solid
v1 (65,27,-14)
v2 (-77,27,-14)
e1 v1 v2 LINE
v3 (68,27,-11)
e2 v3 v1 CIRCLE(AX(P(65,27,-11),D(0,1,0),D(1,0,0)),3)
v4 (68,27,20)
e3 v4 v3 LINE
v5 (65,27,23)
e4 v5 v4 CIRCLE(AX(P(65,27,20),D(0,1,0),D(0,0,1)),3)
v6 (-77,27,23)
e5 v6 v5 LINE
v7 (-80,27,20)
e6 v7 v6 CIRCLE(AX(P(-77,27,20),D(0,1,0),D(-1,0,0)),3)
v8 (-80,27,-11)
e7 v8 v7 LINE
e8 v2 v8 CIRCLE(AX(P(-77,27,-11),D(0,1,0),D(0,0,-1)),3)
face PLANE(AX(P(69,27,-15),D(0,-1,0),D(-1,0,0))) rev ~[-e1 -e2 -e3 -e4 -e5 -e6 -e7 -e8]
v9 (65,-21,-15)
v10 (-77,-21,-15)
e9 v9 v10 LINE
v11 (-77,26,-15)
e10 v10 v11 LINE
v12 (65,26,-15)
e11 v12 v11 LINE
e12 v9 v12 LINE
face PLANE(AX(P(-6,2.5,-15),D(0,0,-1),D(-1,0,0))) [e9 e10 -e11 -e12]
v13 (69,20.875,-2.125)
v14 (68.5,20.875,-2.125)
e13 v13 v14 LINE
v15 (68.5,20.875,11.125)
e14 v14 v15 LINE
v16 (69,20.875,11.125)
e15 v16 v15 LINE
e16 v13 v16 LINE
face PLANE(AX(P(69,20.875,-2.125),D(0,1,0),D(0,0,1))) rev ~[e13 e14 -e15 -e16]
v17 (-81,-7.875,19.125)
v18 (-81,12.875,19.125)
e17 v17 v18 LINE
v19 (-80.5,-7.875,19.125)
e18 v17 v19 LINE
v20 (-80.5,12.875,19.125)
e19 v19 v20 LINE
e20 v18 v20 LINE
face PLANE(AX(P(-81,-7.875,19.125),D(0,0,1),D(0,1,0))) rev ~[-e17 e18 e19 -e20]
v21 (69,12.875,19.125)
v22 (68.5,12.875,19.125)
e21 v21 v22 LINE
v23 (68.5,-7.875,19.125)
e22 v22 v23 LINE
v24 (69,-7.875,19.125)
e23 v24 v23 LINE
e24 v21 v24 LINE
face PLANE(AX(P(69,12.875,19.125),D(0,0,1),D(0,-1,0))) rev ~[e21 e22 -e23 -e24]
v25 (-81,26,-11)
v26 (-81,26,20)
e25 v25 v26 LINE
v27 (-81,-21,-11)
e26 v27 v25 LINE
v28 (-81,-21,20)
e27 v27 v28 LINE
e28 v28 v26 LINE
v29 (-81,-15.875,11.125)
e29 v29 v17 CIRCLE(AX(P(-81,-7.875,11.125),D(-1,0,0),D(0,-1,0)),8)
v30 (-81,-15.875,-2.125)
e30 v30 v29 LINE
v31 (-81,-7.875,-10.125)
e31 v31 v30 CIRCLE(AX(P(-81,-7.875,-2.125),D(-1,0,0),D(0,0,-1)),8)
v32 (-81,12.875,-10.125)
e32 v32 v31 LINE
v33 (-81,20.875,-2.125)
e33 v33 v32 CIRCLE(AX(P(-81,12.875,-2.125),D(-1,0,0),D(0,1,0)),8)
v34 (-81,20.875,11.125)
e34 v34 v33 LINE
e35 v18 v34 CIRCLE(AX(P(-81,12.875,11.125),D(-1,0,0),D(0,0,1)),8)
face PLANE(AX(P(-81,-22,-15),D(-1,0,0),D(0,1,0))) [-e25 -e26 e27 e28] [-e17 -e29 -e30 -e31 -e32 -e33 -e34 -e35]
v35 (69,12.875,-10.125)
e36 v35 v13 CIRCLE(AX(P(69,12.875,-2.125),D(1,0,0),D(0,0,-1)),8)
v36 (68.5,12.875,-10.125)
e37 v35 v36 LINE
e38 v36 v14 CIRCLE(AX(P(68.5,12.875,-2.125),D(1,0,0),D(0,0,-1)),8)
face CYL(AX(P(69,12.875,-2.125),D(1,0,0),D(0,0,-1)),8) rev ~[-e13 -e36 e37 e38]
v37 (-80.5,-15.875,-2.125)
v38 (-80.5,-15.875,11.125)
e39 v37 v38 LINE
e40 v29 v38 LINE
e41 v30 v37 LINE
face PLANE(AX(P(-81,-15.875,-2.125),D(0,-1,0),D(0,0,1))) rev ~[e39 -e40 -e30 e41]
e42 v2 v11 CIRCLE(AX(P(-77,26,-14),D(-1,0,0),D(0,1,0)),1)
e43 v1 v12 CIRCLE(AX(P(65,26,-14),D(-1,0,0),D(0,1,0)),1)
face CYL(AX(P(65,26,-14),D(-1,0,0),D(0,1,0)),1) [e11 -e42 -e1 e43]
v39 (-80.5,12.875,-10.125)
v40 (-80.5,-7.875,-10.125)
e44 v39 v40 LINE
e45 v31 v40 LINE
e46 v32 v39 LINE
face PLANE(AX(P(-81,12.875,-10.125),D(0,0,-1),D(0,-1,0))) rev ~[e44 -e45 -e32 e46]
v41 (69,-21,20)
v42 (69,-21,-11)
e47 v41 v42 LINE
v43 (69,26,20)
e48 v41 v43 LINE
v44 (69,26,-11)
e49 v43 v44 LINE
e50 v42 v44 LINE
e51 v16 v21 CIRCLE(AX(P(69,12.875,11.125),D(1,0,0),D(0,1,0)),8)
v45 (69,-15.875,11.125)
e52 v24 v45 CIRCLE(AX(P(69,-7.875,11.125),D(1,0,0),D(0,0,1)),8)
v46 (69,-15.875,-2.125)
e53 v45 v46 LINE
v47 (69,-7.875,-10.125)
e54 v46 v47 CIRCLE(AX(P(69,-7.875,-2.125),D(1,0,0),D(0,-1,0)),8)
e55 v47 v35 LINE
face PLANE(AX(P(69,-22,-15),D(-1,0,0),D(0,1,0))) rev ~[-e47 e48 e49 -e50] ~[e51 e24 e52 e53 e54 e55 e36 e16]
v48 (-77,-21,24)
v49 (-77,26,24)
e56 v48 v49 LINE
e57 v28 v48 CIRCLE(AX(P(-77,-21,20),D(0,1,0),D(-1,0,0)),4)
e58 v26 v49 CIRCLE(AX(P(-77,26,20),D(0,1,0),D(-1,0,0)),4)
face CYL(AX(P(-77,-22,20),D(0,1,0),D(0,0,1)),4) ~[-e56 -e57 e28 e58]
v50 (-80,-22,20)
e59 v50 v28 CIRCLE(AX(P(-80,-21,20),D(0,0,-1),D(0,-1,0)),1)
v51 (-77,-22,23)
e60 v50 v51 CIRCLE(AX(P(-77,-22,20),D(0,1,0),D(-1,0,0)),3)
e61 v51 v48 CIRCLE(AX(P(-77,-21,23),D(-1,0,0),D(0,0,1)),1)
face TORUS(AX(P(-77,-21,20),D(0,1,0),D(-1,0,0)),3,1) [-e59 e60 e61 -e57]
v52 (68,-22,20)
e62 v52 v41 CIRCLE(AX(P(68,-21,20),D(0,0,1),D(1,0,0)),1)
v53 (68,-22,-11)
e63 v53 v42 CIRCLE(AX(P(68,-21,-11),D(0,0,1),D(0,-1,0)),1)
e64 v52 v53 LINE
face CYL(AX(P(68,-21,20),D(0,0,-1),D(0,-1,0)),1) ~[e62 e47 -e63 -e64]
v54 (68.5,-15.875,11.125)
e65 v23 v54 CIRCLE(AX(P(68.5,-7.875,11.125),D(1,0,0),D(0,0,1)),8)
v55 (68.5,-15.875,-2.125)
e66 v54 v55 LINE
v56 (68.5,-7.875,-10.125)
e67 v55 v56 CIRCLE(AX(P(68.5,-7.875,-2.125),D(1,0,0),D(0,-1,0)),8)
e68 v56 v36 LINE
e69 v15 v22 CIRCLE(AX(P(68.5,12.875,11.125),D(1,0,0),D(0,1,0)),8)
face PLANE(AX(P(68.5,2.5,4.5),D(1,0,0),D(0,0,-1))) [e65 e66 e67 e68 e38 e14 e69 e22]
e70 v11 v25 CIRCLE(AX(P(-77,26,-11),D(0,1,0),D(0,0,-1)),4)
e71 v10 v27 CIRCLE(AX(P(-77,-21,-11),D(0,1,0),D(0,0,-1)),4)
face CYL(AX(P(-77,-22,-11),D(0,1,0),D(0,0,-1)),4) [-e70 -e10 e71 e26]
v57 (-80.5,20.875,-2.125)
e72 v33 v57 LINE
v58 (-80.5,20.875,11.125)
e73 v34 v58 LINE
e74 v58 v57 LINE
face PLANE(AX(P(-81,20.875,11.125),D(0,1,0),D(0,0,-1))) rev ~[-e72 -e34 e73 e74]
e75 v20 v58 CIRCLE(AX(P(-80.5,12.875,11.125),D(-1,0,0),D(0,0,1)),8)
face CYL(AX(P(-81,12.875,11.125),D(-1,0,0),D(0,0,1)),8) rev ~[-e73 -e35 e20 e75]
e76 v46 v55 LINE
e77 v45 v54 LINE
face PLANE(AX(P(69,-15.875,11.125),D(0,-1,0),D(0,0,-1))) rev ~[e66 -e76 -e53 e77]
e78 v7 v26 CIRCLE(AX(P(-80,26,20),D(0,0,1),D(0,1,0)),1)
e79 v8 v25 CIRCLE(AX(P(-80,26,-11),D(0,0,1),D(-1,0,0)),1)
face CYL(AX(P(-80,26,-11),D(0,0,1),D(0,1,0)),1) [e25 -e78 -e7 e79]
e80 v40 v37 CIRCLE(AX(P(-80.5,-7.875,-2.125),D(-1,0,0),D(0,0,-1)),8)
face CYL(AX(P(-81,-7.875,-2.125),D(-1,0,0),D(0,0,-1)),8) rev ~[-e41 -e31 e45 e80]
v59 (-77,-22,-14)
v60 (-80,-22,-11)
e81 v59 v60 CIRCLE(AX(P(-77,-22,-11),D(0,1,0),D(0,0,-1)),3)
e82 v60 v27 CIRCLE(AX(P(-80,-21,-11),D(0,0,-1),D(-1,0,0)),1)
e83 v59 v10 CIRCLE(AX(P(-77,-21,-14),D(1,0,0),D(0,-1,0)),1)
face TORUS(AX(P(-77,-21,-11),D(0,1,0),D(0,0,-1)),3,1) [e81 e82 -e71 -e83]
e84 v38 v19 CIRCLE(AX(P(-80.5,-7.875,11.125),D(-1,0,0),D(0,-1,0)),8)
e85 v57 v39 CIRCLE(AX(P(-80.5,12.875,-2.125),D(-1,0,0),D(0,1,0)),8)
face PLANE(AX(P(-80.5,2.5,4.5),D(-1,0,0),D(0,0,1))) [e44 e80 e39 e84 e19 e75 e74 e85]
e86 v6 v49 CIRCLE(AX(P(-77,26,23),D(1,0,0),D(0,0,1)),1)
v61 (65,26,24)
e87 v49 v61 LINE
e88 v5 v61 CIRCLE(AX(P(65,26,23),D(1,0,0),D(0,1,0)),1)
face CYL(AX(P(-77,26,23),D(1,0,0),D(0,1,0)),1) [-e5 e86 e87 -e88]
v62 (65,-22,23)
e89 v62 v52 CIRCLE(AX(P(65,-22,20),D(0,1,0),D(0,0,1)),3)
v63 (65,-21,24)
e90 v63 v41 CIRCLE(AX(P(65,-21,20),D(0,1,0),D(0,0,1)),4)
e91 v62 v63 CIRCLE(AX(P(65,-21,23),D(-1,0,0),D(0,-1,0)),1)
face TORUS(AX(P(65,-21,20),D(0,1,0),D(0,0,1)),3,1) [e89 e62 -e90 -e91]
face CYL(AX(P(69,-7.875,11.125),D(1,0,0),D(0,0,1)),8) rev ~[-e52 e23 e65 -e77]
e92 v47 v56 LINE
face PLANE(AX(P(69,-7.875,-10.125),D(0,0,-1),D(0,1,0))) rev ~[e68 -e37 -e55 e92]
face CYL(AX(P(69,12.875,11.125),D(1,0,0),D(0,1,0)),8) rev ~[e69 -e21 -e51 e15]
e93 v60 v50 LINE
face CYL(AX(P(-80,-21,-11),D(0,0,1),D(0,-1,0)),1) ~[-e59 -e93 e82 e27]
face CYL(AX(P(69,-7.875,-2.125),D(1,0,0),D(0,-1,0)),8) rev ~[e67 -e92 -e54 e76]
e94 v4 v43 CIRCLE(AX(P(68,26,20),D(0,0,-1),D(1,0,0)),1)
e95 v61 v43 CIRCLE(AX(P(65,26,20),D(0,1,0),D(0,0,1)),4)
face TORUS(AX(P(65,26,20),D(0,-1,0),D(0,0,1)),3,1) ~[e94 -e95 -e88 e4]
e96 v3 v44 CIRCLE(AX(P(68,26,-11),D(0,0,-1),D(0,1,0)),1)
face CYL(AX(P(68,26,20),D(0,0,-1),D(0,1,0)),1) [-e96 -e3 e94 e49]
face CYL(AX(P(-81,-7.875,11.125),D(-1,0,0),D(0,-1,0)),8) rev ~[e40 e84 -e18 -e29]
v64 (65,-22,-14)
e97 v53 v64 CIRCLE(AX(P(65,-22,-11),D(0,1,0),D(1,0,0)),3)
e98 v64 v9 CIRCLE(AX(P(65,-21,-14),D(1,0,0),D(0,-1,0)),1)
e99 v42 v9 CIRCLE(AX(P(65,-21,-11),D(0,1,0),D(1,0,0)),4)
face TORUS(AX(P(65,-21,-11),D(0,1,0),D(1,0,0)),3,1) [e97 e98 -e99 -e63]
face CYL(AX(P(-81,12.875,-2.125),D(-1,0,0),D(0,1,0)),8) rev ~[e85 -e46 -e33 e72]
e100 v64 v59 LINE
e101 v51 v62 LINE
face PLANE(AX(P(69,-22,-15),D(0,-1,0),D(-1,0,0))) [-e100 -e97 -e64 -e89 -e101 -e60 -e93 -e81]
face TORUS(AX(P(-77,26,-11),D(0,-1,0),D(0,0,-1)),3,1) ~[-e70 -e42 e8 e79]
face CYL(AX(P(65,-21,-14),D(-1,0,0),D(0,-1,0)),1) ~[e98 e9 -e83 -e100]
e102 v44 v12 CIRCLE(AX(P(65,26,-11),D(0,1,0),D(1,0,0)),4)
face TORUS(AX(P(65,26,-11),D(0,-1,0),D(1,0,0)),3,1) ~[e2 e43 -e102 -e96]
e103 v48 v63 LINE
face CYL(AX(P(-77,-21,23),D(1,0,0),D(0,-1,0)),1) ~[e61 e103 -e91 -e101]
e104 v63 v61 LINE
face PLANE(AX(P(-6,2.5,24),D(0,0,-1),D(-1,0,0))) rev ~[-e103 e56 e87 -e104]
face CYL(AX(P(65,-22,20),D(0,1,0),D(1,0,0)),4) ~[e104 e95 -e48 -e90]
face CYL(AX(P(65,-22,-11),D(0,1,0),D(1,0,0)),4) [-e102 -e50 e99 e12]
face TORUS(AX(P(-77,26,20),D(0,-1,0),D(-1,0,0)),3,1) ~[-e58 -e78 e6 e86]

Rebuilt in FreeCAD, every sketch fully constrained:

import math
import FreeCAD as App
import Part
import Sketcher
Q = App.Units.Quantity


def edges_at(feature, points):
    """Names of the edges that pass closest to the given points."""
    edges = feature.Shape.Edges
    near = lambda p: min(range(len(edges)), key=lambda i: edges[i].distToShape(Part.Vertex(*p))[0])
    return sorted({f"Edge{near(p) + 1}" for p in points})

doc = App.newDocument("Part")
params = doc.addObject("Spreadsheet::Sheet", "Params")
for row, (alias, value) in enumerate([
    ("sketch1_width", "150 mm"),
    ("sketch1_height", "49 mm"),
    ("pad1_length", "39 mm"),
    ("sketch2_radius", "8 mm"),
    ("sketch2_width", "20.75 mm"),
    ("sketch2_height", "13.25 mm"),
    ("pocket1_length", "0.5 mm"),
    ("sketch3_radius", "8 mm"),
    ("sketch3_width", "20.75 mm"),
    ("sketch3_height", "13.25 mm"),
    ("pocket2_length", "0.5 mm"),
    ("fillet_radius", "4 mm"),
    ("fillet2_radius", "1 mm"),
], start=1):
    params.set(f"A{row}", alias)
    params.set(f"B{row}", "=" + value)
    params.setAlias(f"B{row}", alias)

body = doc.addObject("PartDesign::Body", "Body")

sketch1 = body.newObject("Sketcher::SketchObject", "Sketch")
sketch1.AttachmentSupport = (doc.getObject("XY_Plane"), [""])
sketch1.MapMode = "FlatFace"
sketch1.AttachmentOffset = App.Placement(App.Vector(0, 0, -15), App.Rotation())
sketch1.addGeometry([
    Part.LineSegment(App.Vector(69, 27, 0), App.Vector(69, -22, 0)),
    Part.LineSegment(App.Vector(69, -22, 0), App.Vector(-81, -22, 0)),
    Part.LineSegment(App.Vector(-81, -22, 0), App.Vector(-81, 27, 0)),
    Part.LineSegment(App.Vector(-81, 27, 0), App.Vector(69, 27, 0)),
], False)
sketch1.addConstraint([
    Sketcher.Constraint("Coincident", 0, 2, 1, 1),
    Sketcher.Constraint("Coincident", 1, 2, 2, 1),
    Sketcher.Constraint("Coincident", 2, 2, 3, 1),
    Sketcher.Constraint("Coincident", 3, 2, 0, 1),
    Sketcher.Constraint("Vertical", 0),
    Sketcher.Constraint("Horizontal", 1),
    Sketcher.Constraint("Vertical", 2),
    Sketcher.Constraint("Horizontal", 3),
    Sketcher.Constraint("DistanceX", 1, 2, 1, 1, Q("150 mm")),
    Sketcher.Constraint("DistanceY", 0, 2, 0, 1, Q("49 mm")),
    Sketcher.Constraint("DistanceX", -1, 1, 0, 2, Q("69 mm")),
    Sketcher.Constraint("DistanceY", 0, 2, -1, 1, Q("22 mm")),
])
sketch1.setExpression("Constraints[8]", "Params.sketch1_width")
sketch1.setExpression("Constraints[9]", "Params.sketch1_height")
pad1 = body.newObject("PartDesign::Pad", "Pad")
pad1.Profile = sketch1
pad1.setExpression("Length", "Params.pad1_length")

sketch2 = body.newObject("Sketcher::SketchObject", "Sketch001")
sketch2.AttachmentSupport = (doc.getObject("YZ_Plane"), [""])
sketch2.MapMode = "FlatFace"
sketch2.AttachmentOffset = App.Placement(App.Vector(0, 0, 69), App.Rotation())
sketch2.addGeometry([
    Part.LineSegment(App.Vector(12.875, 19.125, 0), App.Vector(-7.875, 19.125, 0)),
    Part.ArcOfCircle(Part.Circle(App.Vector(-7.875, 11.125, 0), App.Vector(0, 0, 1), 8), math.radians(90), math.radians(180)),
    Part.LineSegment(App.Vector(-15.875, 11.125, 0), App.Vector(-15.875, -2.125, 0)),
    Part.ArcOfCircle(Part.Circle(App.Vector(-7.875, -2.125, 0), App.Vector(0, 0, 1), 8), math.radians(-180), math.radians(-90)),
    Part.LineSegment(App.Vector(-7.875, -10.125, 0), App.Vector(12.875, -10.125, 0)),
    Part.ArcOfCircle(Part.Circle(App.Vector(12.875, -2.125, 0), App.Vector(0, 0, 1), 8), math.radians(-90), math.radians(0)),
    Part.LineSegment(App.Vector(20.875, -2.125, 0), App.Vector(20.875, 11.125, 0)),
    Part.ArcOfCircle(Part.Circle(App.Vector(12.875, 11.125, 0), App.Vector(0, 0, 1), 8), math.radians(0), math.radians(90)),
], False)
sketch2.addConstraint([
    Sketcher.Constraint("Tangent", 0, 2, 1, 1),
    Sketcher.Constraint("Tangent", 1, 2, 2, 1),
    Sketcher.Constraint("Tangent", 2, 2, 3, 1),
    Sketcher.Constraint("Tangent", 3, 2, 4, 1),
    Sketcher.Constraint("Tangent", 4, 2, 5, 1),
    Sketcher.Constraint("Tangent", 5, 2, 6, 1),
    Sketcher.Constraint("Tangent", 6, 2, 7, 1),
    Sketcher.Constraint("Tangent", 7, 2, 0, 1),
    Sketcher.Constraint("Horizontal", 0),
    Sketcher.Constraint("Vertical", 2),
    Sketcher.Constraint("Horizontal", 4),
    Sketcher.Constraint("Vertical", 6),
    Sketcher.Constraint("Equal", 1, 3),
    Sketcher.Constraint("Equal", 3, 5),
    Sketcher.Constraint("Equal", 5, 7),
    Sketcher.Constraint("Radius", 1, Q("8 mm")),
    Sketcher.Constraint("DistanceX", 0, 2, 0, 1, Q("20.75 mm")),
    Sketcher.Constraint("DistanceY", 2, 2, 2, 1, Q("13.25 mm")),
    Sketcher.Constraint("DistanceX", 1, 3, -1, 1, Q("7.875 mm")),
    Sketcher.Constraint("DistanceY", -1, 1, 1, 3, Q("11.125 mm")),
])
sketch2.setExpression("Constraints[15]", "Params.sketch2_radius")
sketch2.setExpression("Constraints[16]", "Params.sketch2_width")
sketch2.setExpression("Constraints[17]", "Params.sketch2_height")
pocket1 = body.newObject("PartDesign::Pocket", "Pocket")
pocket1.Profile = sketch2
pocket1.setExpression("Length", "Params.pocket1_length")

sketch3 = body.newObject("Sketcher::SketchObject", "Sketch002")
sketch3.AttachmentSupport = (doc.getObject("YZ_Plane"), [""])
sketch3.MapMode = "FlatFace"
sketch3.AttachmentOffset = App.Placement(App.Vector(0, 0, -81), App.Rotation())
sketch3.addGeometry([
    Part.LineSegment(App.Vector(20.875, 11.125, 0), App.Vector(20.875, -2.125, 0)),
    Part.ArcOfCircle(Part.Circle(App.Vector(12.875, -2.125, 0), App.Vector(0, 0, 1), 8), math.radians(-90), math.radians(0)),
    Part.LineSegment(App.Vector(12.875, -10.125, 0), App.Vector(-7.875, -10.125, 0)),
    Part.ArcOfCircle(Part.Circle(App.Vector(-7.875, -2.125, 0), App.Vector(0, 0, 1), 8), math.radians(-180), math.radians(-90)),
    Part.LineSegment(App.Vector(-15.875, -2.125, 0), App.Vector(-15.875, 11.125, 0)),
    Part.ArcOfCircle(Part.Circle(App.Vector(-7.875, 11.125, 0), App.Vector(0, 0, 1), 8), math.radians(90), math.radians(180)),
    Part.LineSegment(App.Vector(-7.875, 19.125, 0), App.Vector(12.875, 19.125, 0)),
    Part.ArcOfCircle(Part.Circle(App.Vector(12.875, 11.125, 0), App.Vector(0, 0, 1), 8), math.radians(0), math.radians(90)),
], False)
sketch3.addConstraint([
    Sketcher.Constraint("Tangent", 0, 2, 1, 2),
    Sketcher.Constraint("Tangent", 1, 1, 2, 1),
    Sketcher.Constraint("Tangent", 2, 2, 3, 2),
    Sketcher.Constraint("Tangent", 3, 1, 4, 1),
    Sketcher.Constraint("Tangent", 4, 2, 5, 2),
    Sketcher.Constraint("Tangent", 5, 1, 6, 1),
    Sketcher.Constraint("Tangent", 6, 2, 7, 2),
    Sketcher.Constraint("Tangent", 7, 1, 0, 1),
    Sketcher.Constraint("Vertical", 0),
    Sketcher.Constraint("Horizontal", 2),
    Sketcher.Constraint("Vertical", 4),
    Sketcher.Constraint("Horizontal", 6),
    Sketcher.Constraint("Equal", 1, 3),
    Sketcher.Constraint("Equal", 3, 5),
    Sketcher.Constraint("Equal", 5, 7),
    Sketcher.Constraint("Radius", 1, Q("8 mm")),
    Sketcher.Constraint("DistanceX", 2, 2, 2, 1, Q("20.75 mm")),
    Sketcher.Constraint("DistanceY", 0, 2, 0, 1, Q("13.25 mm")),
    Sketcher.Constraint("DistanceX", -1, 1, 1, 3, Q("12.875 mm")),
    Sketcher.Constraint("DistanceY", 1, 3, -1, 1, Q("2.125 mm")),
])
sketch3.setExpression("Constraints[15]", "Params.sketch3_radius")
sketch3.setExpression("Constraints[16]", "Params.sketch3_width")
sketch3.setExpression("Constraints[17]", "Params.sketch3_height")
pocket2 = body.newObject("PartDesign::Pocket", "Pocket001")
pocket2.Profile = sketch3
pocket2.setExpression("Length", "Params.pocket2_length")
pocket2.Reversed = True
doc.recompute()

fillet = body.newObject("PartDesign::Fillet", "Fillet")
fillet.Base = (pocket2, edges_at(pocket2, [
    (-81, 2.5, 24),
    (69, 2.5, 24),
    (-81, 2.5, -15),
    (69, 2.5, -15),
]))
fillet.setExpression("Radius", "Params.fillet_radius")
doc.recompute()

fillet2 = body.newObject("PartDesign::Fillet", "Fillet001")
fillet2.Base = (fillet, edges_at(fillet, [
    (-6, -22, -15),
    (-6, 27, -15),
    (-81, 27, 4.5),
    (-6, 27, 24),
    (69, 27, 4.5),
    (67.828, 27, 22.828),
    (67.828, 27, -13.828),
    (-79.828, 27, 22.828),
    (-79.828, 27, -13.828),
    (-81, -22, 4.5),
    (69, -22, 4.5),
    (-6, -22, 24),
    (67.828, -22, 22.828),
    (67.828, -22, -13.828),
    (-79.828, -22, 22.828),
    (-79.828, -22, -13.828),
]))
fillet2.setExpression("Radius", "Params.fillet2_radius")

doc.recompute()
